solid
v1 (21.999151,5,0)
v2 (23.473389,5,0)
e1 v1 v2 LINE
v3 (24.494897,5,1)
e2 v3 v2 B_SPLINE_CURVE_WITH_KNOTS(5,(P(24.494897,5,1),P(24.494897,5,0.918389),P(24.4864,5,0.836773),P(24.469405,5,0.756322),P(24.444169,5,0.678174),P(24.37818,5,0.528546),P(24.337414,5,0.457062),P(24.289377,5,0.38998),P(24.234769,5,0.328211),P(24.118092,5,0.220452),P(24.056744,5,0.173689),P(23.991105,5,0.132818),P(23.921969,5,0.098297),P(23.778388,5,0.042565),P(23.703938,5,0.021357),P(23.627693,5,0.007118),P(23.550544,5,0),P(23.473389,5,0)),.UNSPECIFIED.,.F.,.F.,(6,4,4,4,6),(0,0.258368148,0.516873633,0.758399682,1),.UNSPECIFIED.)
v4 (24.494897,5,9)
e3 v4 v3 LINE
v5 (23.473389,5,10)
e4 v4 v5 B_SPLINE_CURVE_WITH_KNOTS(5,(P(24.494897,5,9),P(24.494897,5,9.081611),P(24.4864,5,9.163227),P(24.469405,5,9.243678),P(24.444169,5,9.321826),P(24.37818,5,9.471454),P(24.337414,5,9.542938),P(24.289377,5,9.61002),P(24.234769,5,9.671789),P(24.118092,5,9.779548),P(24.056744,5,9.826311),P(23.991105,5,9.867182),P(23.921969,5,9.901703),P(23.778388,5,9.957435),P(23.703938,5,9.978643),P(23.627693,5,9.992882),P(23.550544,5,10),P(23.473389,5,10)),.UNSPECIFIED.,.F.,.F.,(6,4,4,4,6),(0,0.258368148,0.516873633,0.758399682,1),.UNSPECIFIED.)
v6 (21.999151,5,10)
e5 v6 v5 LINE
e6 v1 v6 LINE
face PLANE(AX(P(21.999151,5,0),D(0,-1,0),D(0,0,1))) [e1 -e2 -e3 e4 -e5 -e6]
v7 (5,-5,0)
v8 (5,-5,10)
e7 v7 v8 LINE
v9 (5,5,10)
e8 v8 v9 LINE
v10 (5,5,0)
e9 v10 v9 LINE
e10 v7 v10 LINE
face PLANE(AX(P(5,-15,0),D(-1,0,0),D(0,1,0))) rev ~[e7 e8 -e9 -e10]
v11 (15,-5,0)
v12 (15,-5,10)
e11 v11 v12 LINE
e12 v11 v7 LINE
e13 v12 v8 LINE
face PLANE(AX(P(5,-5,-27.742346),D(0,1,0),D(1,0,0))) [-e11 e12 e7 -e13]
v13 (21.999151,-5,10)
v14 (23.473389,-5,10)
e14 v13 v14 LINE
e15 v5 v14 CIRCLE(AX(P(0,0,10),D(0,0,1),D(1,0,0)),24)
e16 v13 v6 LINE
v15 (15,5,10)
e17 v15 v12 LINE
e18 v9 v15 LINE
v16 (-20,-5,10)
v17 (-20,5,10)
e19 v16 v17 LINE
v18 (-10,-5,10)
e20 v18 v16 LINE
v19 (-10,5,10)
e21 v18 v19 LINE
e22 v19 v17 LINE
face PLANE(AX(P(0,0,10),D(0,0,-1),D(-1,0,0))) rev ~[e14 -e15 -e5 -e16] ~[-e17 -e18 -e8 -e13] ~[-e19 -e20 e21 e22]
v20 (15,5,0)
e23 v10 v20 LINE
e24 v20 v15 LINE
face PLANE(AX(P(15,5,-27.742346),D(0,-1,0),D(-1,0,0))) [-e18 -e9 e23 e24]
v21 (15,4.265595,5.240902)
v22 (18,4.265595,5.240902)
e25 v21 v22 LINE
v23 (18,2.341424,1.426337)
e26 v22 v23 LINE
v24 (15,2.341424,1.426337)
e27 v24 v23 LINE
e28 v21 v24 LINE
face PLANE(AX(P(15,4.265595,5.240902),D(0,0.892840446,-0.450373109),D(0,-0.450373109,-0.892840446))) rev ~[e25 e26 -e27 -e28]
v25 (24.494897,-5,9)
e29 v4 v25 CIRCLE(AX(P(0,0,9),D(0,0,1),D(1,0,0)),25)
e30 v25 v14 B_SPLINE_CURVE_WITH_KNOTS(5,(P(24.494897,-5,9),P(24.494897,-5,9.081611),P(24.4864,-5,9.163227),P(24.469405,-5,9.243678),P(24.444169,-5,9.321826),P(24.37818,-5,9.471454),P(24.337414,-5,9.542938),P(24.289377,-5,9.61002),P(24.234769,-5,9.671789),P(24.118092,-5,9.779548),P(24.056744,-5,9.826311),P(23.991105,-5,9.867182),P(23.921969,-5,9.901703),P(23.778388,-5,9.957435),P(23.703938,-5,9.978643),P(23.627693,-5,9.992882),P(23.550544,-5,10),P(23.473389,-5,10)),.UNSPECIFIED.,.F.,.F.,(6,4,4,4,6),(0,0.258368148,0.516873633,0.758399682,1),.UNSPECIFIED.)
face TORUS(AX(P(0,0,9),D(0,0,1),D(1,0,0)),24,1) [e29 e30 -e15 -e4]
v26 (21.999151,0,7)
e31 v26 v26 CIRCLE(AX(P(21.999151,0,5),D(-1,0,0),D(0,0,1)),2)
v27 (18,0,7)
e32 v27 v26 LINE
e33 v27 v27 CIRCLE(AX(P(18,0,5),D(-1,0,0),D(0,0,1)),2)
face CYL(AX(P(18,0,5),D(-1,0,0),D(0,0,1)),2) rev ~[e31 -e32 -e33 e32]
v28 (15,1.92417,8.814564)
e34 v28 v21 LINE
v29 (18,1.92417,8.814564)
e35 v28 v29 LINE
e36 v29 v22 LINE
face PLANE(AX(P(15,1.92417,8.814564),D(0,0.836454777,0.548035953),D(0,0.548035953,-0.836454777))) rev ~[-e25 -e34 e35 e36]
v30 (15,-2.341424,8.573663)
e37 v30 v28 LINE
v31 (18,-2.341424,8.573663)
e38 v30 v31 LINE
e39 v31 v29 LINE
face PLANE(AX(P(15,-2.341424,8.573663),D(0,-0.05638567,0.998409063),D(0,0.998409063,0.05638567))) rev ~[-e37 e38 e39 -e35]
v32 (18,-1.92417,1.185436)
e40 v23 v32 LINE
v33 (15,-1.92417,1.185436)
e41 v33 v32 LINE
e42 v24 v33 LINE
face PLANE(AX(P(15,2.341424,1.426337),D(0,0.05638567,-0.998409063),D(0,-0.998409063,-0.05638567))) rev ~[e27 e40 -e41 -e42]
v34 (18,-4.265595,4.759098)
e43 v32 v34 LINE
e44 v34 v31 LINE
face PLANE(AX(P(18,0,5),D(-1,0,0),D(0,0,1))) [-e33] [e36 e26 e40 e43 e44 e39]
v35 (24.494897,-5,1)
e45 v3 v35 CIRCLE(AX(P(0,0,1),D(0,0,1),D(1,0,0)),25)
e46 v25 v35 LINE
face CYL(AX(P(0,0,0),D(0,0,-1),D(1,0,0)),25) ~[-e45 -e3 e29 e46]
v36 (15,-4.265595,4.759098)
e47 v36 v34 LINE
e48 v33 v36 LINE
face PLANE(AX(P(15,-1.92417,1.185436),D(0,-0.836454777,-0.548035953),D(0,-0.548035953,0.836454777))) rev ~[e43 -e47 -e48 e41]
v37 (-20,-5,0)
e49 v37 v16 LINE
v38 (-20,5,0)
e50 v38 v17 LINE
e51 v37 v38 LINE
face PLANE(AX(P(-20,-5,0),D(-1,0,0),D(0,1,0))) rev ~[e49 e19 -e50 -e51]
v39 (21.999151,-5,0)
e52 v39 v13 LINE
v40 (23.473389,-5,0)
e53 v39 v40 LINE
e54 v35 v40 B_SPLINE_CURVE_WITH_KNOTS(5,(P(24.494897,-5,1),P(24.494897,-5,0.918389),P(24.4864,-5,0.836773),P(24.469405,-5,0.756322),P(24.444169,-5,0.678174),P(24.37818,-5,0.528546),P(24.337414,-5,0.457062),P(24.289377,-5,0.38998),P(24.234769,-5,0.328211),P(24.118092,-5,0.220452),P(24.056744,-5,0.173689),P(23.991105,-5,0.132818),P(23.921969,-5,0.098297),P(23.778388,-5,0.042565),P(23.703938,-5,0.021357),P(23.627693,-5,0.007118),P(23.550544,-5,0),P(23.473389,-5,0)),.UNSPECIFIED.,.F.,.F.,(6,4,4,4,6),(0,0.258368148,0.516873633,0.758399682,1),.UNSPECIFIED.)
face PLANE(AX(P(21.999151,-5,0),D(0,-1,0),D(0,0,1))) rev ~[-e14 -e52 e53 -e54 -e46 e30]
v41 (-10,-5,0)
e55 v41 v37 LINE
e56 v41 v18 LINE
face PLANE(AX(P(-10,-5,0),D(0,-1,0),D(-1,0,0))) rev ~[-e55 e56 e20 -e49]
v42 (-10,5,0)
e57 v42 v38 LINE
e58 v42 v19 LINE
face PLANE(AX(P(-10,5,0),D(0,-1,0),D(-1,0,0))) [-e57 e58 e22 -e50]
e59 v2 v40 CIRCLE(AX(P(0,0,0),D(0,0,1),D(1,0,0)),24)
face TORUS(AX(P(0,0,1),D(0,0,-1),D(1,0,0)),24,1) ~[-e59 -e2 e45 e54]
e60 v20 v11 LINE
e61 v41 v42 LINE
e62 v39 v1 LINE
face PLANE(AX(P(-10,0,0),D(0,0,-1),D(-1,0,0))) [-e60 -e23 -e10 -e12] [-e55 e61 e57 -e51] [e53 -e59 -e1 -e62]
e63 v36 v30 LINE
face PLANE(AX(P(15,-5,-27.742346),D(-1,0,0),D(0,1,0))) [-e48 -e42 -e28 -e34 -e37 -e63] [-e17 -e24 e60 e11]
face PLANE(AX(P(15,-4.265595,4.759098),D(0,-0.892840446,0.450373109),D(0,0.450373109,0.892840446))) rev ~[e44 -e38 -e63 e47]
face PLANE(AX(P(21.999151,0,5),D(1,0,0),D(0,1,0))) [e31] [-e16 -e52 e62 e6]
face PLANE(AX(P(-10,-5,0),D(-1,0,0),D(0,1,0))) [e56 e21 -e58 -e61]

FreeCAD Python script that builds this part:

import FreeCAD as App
import Part
import Sketcher
Q = App.Units.Quantity


def edges_at(feature, points):
    """Names of the edges that pass closest to the given points."""
    edges = feature.Shape.Edges
    near = lambda p: min(range(len(edges)), key=lambda i: edges[i].distToShape(Part.Vertex(*p))[0])
    return sorted({f"Edge{near(p) + 1}" for p in points})


def add_polygon(sketch, points):
    """Adds a closed chain of lines whose ends are joined by coincident constraints."""
    first, n = sketch.GeometryCount, len(points)
    for a, b in zip(points, points[1:] + points[:1]):
        sketch.addGeometry(Part.LineSegment(App.Vector(*a, 0), App.Vector(*b, 0)), False)
    for i in range(n):
        sketch.addConstraint(Sketcher.Constraint("Coincident", first + i, 2, first + (i + 1) % n, 1))

doc = App.newDocument("Part")
body = doc.addObject("PartDesign::Body", "Body")

sketch1 = doc.addObject("Sketcher::SketchObject", "Sketch")
body.addObject(sketch1)
sketch1.AttachmentSupport = (doc.XY_Plane, [""])
sketch1.MapMode = "FlatFace"
sketch1.addGeometry(Part.Circle(App.Vector(0, 0, 0), App.Vector(0, 0, 1), 25), False)
sketch1.addConstraint(Sketcher.Constraint("Coincident", 0, 3, -1, 1))
sketch1.addConstraint(Sketcher.Constraint("Diameter", 0, Q("50 mm")))
pad1 = doc.addObject("PartDesign::Pad", "Pad")
body.addObject(pad1)
pad1.Profile = sketch1
pad1.Length = 10

sketch2 = doc.addObject("Sketcher::SketchObject", "Sketch001")
body.addObject(sketch2)
sketch2.AttachmentSupport = (doc.XY_Plane, [""])
sketch2.MapMode = "FlatFace"
sketch2.AttachmentOffset = App.Placement(App.Vector(0, 0, 10), App.Rotation())
add_polygon(sketch2, [(5, -5), (15, -5), (15, 5), (5, 5), (5, 15), (-5, 15), (-5, 5), (-15, 5), (-15, -5), (-5, -5), (-5, -15), (5, -15)])
sketch2.addConstraint(Sketcher.Constraint("Horizontal", 0))
sketch2.addConstraint(Sketcher.Constraint("Vertical", 1))
sketch2.addConstraint(Sketcher.Constraint("Horizontal", 2))
sketch2.addConstraint(Sketcher.Constraint("Vertical", 3))
sketch2.addConstraint(Sketcher.Constraint("Horizontal", 4))
sketch2.addConstraint(Sketcher.Constraint("Vertical", 5))
sketch2.addConstraint(Sketcher.Constraint("Horizontal", 6))
sketch2.addConstraint(Sketcher.Constraint("Vertical", 7))
sketch2.addConstraint(Sketcher.Constraint("Horizontal", 8))
sketch2.addConstraint(Sketcher.Constraint("Vertical", 9))
sketch2.addConstraint(Sketcher.Constraint("Horizontal", 10))
sketch2.addConstraint(Sketcher.Constraint("Vertical", 11))
sketch2.addConstraint(Sketcher.Constraint("Symmetric", 0, 2, 6, 2, -1, 1))
sketch2.addConstraint(Sketcher.Constraint("Symmetric", 2, 2, 8, 2, -1, 1))
sketch2.addConstraint(Sketcher.Constraint("Symmetric", 4, 2, 10, 2, -1, 1))
sketch2.addConstraint(Sketcher.Constraint("Symmetric", 2, 2, 5, 2, -2))
sketch2.addConstraint(Sketcher.Constraint("Equal", 2, 4))
sketch2.addConstraint(Sketcher.Constraint("Equal", 10, 1))
sketch2.addConstraint(Sketcher.Constraint("Equal", 1, 3))
sketch2.addConstraint(Sketcher.Constraint("DistanceX", 0, 1, 0, 2, Q("10 mm")))
pocket1 = doc.addObject("PartDesign::Pocket", "Pocket")
body.addObject(pocket1)
pocket1.Profile = sketch2
pocket1.Type = "ThroughAll"
pocket1.Midplane = True

sketch3 = doc.addObject("Sketcher::SketchObject", "Sketch002")
body.addObject(sketch3)
sketch3.AttachmentSupport = (doc.YZ_Plane, [""])
sketch3.MapMode = "FlatFace"
sketch3.AttachmentOffset = App.Placement(App.Vector(0, 0, 15), App.Rotation())
add_polygon(sketch3, [(-4.3, 4.8), (-2.3, 8.6), (1.9, 8.8), (4.3, 5.2), (2.3, 1.4), (-1.9, 1.2)])
sketch3.addConstraint(Sketcher.Constraint("Parallel", 0, 3))
sketch3.addConstraint(Sketcher.Constraint("Parallel", 1, 4))
sketch3.addConstraint(Sketcher.Constraint("Parallel", 2, 5))
sketch3.addConstraint(Sketcher.Constraint("Equal", 0, 1))
sketch3.addConstraint(Sketcher.Constraint("Equal", 1, 2))
sketch3.addConstraint(Sketcher.Constraint("Equal", 2, 3))
sketch3.addConstraint(Sketcher.Constraint("DistanceY", -1, 1, 2, 2, Q("5.240902 mm")))
sketch3.addConstraint(Sketcher.Constraint("DistanceY", -1, 1, 5, 2, Q("4.759098 mm")))
sketch3.addConstraint(Sketcher.Constraint("DistanceY", 0, 2, 1, 2, Q("0.240902 mm")))
sketch3.addConstraint(Sketcher.Constraint("Distance", 0, Q("4.272392 mm")))
sketch3.addConstraint(Sketcher.Constraint("DistanceX", -1, 1, 1, 2, Q("1.92417 mm")))
sketch3.addConstraint(Sketcher.Constraint("DistanceX", 4, 2, -1, 1, Q("1.92417 mm")))
pocket2 = doc.addObject("PartDesign::Pocket", "Pocket001")
body.addObject(pocket2)
pocket2.Profile = sketch3
pocket2.Length = 3
pocket2.Reversed = True

sketch4 = doc.addObject("Sketcher::SketchObject", "Sketch003")
body.addObject(sketch4)
sketch4.AttachmentSupport = (doc.YZ_Plane, [""])
sketch4.MapMode = "FlatFace"
sketch4.AttachmentOffset = App.Placement(App.Vector(0, 0, 18), App.Rotation())
sketch4.addGeometry(Part.Circle(App.Vector(0, 5, 0), App.Vector(0, 0, 1), 2), False)
sketch4.addConstraint(Sketcher.Constraint("PointOnObject", 0, 3, -2))
sketch4.addConstraint(Sketcher.Constraint("Diameter", 0, Q("4 mm")))
sketch4.addConstraint(Sketcher.Constraint("DistanceY", -1, 1, 0, 3, Q("5 mm")))
pocket3 = doc.addObject("PartDesign::Pocket", "Pocket002")
body.addObject(pocket3)
pocket3.Profile = sketch4
pocket3.Length = 13
pocket3.Reversed = True
doc.recompute()

fillet = doc.addObject("PartDesign::Fillet", "Fillet")
body.addObject(fillet)
fillet.Base = (pocket3, edges_at(pocket3, [(-25, 0, 0), (-25, 0, 10)]))
fillet.Radius = 1

sketch5 = doc.addObject("Sketcher::SketchObject", "Sketch004")
body.addObject(sketch5)
sketch5.AttachmentSupport = (doc.YZ_Plane, [""])
sketch5.MapMode = "FlatFace"
sketch5.AttachmentOffset = App.Placement(App.Vector(0, 0, 24.999151), App.Rotation())
add_polygon(sketch5, [(-5, 10), (-5, 0), (5, 0), (5, 10)])
sketch5.addConstraint(Sketcher.Constraint("Vertical", 0))
sketch5.addConstraint(Sketcher.Constraint("Horizontal", 1))
sketch5.addConstraint(Sketcher.Constraint("Vertical", 2))
sketch5.addConstraint(Sketcher.Constraint("Horizontal", 3))
sketch5.addConstraint(Sketcher.Constraint("Symmetric", 0, 2, 1, 2, -1, 1))
sketch5.addConstraint(Sketcher.Constraint("Equal", 3, 0))
sketch5.addConstraint(Sketcher.Constraint("DistanceX", 1, 1, 1, 2, Q("10 mm")))
pocket4 = doc.addObject("PartDesign::Pocket", "Pocket003")
body.addObject(pocket4)
pocket4.Profile = sketch5
pocket4.Type = "TwoLengths"
pocket4.Length = 3
pocket4.Length2 = 3
pocket4.Reversed = True

sketch6 = doc.addObject("Sketcher::SketchObject", "Sketch005")
body.addObject(sketch6)
sketch6.AttachmentSupport = (doc.XY_Plane, [""])
sketch6.MapMode = "FlatFace"
add_polygon(sketch6, [(5, 15), (5, -15), (-5, -15), (-5, 15)])
sketch6.addConstraint(Sketcher.Constraint("Vertical", 0))
sketch6.addConstraint(Sketcher.Constraint("Horizontal", 1))
sketch6.addConstraint(Sketcher.Constraint("Vertical", 2))
sketch6.addConstraint(Sketcher.Constraint("Horizontal", 3))
sketch6.addConstraint(Sketcher.Constraint("Symmetric", 0, 2, 2, 2, -1, 1))
sketch6.addConstraint(Sketcher.Constraint("DistanceX", 1, 2, 1, 1, Q("10 mm")))
sketch6.addConstraint(Sketcher.Constraint("DistanceY", 0, 2, 0, 1, Q("30 mm")))
pad2 = doc.addObject("PartDesign::Pad", "Pad001")
body.addObject(pad2)
pad2.Profile = sketch6
pad2.Length = 10

sketch7 = doc.addObject("Sketcher::SketchObject", "Sketch006")
body.addObject(sketch7)
sketch7.AttachmentSupport = (doc.XY_Plane, [""])
sketch7.MapMode = "FlatFace"
add_polygon(sketch7, [(-5, 5), (-5, -5), (-15, -5), (-15, 5)])
sketch7.addConstraint(Sketcher.Constraint("Vertical", 0))
sketch7.addConstraint(Sketcher.Constraint("Horizontal", 1))
sketch7.addConstraint(Sketcher.Constraint("Vertical", 2))
sketch7.addConstraint(Sketcher.Constraint("Horizontal", 3))
sketch7.addConstraint(Sketcher.Constraint("Equal", 3, 0))
sketch7.addConstraint(Sketcher.Constraint("DistanceX", 1, 2, 1, 1, Q("10 mm")))
sketch7.addConstraint(Sketcher.Constraint("DistanceX", 0, 2, -1, 1, Q("5 mm")))
sketch7.addConstraint(Sketcher.Constraint("DistanceY", 0, 2, -1, 1, Q("5 mm")))
pad3 = doc.addObject("PartDesign::Pad", "Pad002")
body.addObject(pad3)
pad3.Profile = sketch7
pad3.Length = 10

sketch8 = doc.addObject("Sketcher::SketchObject", "Sketch007")
body.addObject(sketch8)
sketch8.AttachmentSupport = (doc.XY_Plane, [""])
sketch8.MapMode = "FlatFace"
add_polygon(sketch8, [(-10, 5), (-10, -5), (-20, -5), (-20, 5)])
sketch8.addConstraint(Sketcher.Constraint("Vertical", 0))
sketch8.addConstraint(Sketcher.Constraint("Horizontal", 1))
sketch8.addConstraint(Sketcher.Constraint("Vertical", 2))
sketch8.addConstraint(Sketcher.Constraint("Horizontal", 3))
sketch8.addConstraint(Sketcher.Constraint("Equal", 3, 0))
sketch8.addConstraint(Sketcher.Constraint("DistanceX", 1, 2, 1, 1, Q("10 mm")))
sketch8.addConstraint(Sketcher.Constraint("DistanceX", 0, 2, -1, 1, Q("10 mm")))
sketch8.addConstraint(Sketcher.Constraint("DistanceY", 0, 2, -1, 1, Q("5 mm")))
pocket5 = doc.addObject("PartDesign::Pocket", "Pocket004")
body.addObject(pocket5)
pocket5.Profile = sketch8
pocket5.Length = 10
pocket5.Reversed = True

doc.recompute()
